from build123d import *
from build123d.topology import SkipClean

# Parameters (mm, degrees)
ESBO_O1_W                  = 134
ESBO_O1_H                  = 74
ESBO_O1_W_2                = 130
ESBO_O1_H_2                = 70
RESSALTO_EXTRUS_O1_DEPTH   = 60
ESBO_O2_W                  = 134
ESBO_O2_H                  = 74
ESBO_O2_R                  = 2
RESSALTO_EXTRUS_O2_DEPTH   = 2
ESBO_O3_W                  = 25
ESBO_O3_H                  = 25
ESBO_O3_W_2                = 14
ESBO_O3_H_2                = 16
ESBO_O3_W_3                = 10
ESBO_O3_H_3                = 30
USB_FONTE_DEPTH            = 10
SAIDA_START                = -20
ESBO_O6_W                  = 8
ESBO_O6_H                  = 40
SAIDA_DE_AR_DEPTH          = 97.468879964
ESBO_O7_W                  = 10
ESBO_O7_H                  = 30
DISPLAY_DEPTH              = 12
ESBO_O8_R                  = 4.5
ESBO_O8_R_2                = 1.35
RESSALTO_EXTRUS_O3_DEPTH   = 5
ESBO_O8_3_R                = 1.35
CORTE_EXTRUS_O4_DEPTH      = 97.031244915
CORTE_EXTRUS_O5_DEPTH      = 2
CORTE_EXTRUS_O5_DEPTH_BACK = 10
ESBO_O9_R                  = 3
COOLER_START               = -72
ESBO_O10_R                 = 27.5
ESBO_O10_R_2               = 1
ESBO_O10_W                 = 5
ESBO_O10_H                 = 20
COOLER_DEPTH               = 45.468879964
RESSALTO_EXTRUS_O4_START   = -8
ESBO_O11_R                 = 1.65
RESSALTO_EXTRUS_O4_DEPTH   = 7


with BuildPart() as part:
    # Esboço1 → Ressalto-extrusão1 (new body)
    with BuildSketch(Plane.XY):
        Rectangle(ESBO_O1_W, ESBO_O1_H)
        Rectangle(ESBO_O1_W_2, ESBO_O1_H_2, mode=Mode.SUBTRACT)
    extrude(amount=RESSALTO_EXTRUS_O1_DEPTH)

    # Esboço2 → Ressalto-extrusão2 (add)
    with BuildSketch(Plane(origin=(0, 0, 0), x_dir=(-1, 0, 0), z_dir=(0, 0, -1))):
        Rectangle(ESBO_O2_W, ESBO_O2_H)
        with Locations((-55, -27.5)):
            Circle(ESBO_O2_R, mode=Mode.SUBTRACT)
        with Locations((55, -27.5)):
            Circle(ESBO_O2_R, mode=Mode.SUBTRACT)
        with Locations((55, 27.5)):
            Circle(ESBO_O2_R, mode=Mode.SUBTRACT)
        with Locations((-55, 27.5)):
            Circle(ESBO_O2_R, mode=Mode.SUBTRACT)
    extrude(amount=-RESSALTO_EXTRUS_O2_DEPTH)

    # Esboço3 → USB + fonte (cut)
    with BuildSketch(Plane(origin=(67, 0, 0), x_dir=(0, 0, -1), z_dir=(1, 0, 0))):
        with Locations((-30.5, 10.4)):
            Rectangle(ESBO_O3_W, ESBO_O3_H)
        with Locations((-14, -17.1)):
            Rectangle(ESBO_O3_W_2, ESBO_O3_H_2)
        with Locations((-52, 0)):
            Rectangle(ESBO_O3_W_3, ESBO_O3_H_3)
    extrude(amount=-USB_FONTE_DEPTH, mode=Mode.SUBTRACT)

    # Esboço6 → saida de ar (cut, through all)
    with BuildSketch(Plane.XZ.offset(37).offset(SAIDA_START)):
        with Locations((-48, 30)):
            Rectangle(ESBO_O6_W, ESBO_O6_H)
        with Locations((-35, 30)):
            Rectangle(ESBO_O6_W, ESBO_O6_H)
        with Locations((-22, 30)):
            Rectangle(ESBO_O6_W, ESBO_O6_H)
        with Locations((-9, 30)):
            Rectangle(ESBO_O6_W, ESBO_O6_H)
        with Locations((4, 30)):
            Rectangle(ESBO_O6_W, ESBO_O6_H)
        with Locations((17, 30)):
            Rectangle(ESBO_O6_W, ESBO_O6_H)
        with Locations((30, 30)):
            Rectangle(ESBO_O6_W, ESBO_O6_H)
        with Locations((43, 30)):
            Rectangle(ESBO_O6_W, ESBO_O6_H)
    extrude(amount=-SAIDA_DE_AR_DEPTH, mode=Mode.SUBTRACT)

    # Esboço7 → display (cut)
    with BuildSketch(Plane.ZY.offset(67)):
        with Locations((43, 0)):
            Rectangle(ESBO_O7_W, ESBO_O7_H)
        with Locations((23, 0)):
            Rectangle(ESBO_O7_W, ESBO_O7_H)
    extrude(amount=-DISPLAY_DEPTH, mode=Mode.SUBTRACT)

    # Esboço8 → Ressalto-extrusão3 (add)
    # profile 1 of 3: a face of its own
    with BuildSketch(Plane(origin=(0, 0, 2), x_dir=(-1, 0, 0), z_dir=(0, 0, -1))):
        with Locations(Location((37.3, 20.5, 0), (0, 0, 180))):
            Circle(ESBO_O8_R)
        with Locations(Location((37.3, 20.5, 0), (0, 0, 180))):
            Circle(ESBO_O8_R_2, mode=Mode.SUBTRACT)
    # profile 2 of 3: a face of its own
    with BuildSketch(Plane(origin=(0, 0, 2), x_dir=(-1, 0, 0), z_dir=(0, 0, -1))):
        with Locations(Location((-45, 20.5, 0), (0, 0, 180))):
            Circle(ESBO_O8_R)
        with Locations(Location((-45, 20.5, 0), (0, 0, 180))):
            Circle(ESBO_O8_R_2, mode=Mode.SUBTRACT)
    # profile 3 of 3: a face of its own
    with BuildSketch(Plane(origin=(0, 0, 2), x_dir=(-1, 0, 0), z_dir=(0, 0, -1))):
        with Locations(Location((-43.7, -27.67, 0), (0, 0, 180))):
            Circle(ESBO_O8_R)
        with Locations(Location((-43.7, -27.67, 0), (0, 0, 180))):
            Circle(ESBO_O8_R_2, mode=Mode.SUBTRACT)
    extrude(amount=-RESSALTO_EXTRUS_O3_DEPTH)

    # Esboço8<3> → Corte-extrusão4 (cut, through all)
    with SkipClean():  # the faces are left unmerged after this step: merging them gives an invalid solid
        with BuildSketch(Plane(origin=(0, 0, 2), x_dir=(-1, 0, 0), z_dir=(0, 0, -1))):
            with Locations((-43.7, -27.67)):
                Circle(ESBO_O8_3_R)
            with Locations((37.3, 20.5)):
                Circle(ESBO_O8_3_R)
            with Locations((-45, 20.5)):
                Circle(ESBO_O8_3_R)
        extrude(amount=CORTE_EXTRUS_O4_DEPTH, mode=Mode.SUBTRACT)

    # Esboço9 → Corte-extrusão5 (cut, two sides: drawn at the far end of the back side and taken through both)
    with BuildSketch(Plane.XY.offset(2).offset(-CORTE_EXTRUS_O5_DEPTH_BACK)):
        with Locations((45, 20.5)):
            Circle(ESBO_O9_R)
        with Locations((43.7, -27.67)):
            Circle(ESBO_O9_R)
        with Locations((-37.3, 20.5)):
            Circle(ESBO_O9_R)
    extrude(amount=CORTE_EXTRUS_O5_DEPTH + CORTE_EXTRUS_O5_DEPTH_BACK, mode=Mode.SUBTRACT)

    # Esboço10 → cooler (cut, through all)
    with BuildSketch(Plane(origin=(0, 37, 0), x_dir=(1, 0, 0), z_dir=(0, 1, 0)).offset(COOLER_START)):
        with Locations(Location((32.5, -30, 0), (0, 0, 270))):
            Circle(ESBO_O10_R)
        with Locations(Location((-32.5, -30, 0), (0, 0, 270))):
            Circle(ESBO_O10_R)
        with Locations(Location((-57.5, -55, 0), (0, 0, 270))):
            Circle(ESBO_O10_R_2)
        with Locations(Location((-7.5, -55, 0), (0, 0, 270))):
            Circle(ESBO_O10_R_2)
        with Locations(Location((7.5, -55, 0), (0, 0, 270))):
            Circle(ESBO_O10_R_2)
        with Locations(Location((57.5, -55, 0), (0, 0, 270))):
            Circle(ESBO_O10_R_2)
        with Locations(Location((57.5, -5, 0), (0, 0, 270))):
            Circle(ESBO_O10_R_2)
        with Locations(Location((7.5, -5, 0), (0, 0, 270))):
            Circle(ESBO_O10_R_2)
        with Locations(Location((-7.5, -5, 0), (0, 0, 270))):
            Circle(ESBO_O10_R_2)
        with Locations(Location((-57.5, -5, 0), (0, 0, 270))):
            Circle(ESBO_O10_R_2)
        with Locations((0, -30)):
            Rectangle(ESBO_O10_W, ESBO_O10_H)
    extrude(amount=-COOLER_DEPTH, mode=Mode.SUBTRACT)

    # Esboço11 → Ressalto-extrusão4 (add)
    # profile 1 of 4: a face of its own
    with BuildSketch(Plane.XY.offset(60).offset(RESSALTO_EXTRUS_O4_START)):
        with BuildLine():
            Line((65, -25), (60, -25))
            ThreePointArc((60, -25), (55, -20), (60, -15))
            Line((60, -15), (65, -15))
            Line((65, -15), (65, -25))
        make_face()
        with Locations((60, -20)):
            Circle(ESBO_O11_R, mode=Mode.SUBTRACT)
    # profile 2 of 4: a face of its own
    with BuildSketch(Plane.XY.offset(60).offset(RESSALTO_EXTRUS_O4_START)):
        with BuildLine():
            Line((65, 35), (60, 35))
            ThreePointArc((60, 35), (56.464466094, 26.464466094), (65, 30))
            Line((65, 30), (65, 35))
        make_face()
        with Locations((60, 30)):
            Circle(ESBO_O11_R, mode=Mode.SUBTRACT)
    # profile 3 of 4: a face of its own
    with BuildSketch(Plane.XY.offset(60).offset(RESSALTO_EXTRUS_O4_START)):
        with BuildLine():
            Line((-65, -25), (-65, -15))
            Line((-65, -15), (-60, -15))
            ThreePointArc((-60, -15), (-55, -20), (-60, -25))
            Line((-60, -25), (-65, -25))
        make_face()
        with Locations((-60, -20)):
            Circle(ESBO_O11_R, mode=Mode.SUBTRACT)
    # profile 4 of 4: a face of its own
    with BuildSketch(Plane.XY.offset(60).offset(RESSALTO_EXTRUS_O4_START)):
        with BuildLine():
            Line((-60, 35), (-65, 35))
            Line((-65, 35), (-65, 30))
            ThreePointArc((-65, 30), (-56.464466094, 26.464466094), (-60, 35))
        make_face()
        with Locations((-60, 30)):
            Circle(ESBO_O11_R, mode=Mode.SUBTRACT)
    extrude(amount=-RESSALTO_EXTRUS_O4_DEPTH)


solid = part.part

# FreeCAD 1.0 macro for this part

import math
import FreeCAD as App
import Part
import Sketcher
from FreeCAD import Vector
Q = App.Units.Quantity

doc = App.newDocument("Part")
body = doc.addObject("PartDesign::Body", "Body")

# Sketch on XY plane
sketch1 = body.newObject("Sketcher::SketchObject", "Sketch")
sketch1.AttachmentSupport = (doc.getObject("XY_Plane"), [""])
sketch1.MapMode = "FlatFace"
sketch1.addGeometry(Part.LineSegment(Vector(-67, 37, 0), Vector(-67, -37, 0)), False)
sketch1.addGeometry(Part.LineSegment(Vector(-67, -37, 0), Vector(67, -37, 0)), False)
sketch1.addGeometry(Part.LineSegment(Vector(67, -37, 0), Vector(67, 37, 0)), False)
sketch1.addGeometry(Part.LineSegment(Vector(67, 37, 0), Vector(-67, 37, 0)), False)
sketch1.addGeometry(Part.LineSegment(Vector(65, -35, 0), Vector(-65, -35, 0)), False)
sketch1.addGeometry(Part.LineSegment(Vector(-65, -35, 0), Vector(-65, 35, 0)), False)
sketch1.addGeometry(Part.LineSegment(Vector(-65, 35, 0), Vector(65, 35, 0)), False)
sketch1.addGeometry(Part.LineSegment(Vector(65, 35, 0), Vector(65, -35, 0)), False)
sketch1.addConstraint(Sketcher.Constraint("Coincident", 0, 2, 1, 1))
sketch1.addConstraint(Sketcher.Constraint("Coincident", 1, 2, 2, 1))
sketch1.addConstraint(Sketcher.Constraint("Coincident", 2, 2, 3, 1))
sketch1.addConstraint(Sketcher.Constraint("Coincident", 3, 2, 0, 1))
sketch1.addConstraint(Sketcher.Constraint("Coincident", 4, 2, 5, 1))
sketch1.addConstraint(Sketcher.Constraint("Coincident", 5, 2, 6, 1))
sketch1.addConstraint(Sketcher.Constraint("Coincident", 6, 2, 7, 1))
sketch1.addConstraint(Sketcher.Constraint("Coincident", 7, 2, 4, 1))
sketch1.addConstraint(Sketcher.Constraint("Vertical", 0))
sketch1.addConstraint(Sketcher.Constraint("Horizontal", 1))
sketch1.addConstraint(Sketcher.Constraint("Vertical", 2))
sketch1.addConstraint(Sketcher.Constraint("Horizontal", 3))
sketch1.addConstraint(Sketcher.Constraint("Horizontal", 4))
sketch1.addConstraint(Sketcher.Constraint("Vertical", 5))
sketch1.addConstraint(Sketcher.Constraint("Horizontal", 6))
sketch1.addConstraint(Sketcher.Constraint("Vertical", 7))
sketch1.addConstraint(Sketcher.Constraint("Symmetric", 0, 2, 2, 2, -1, 1))
sketch1.addConstraint(Sketcher.Constraint("Symmetric", 4, 2, 6, 2, -1, 1))
sketch1.addConstraint(Sketcher.Constraint("DistanceX", 1, 1, 1, 2, Q("134 mm")))
sketch1.addConstraint(Sketcher.Constraint("DistanceX", 4, 2, 4, 1, Q("130 mm")))
sketch1.addConstraint(Sketcher.Constraint("DistanceY", 0, 2, 0, 1, Q("74 mm")))
sketch1.addConstraint(Sketcher.Constraint("DistanceY", 5, 1, 5, 2, Q("70 mm")))
pad1 = body.newObject("PartDesign::Pad", "Pad")
pad1.Profile = sketch1
pad1.Length = 60

# Sketch on XY plane
sketch2 = body.newObject("Sketcher::SketchObject", "Sketch001")
sketch2.AttachmentSupport = (doc.getObject("XY_Plane"), [""])
sketch2.MapMode = "FlatFace"
sketch2.addGeometry(Part.LineSegment(Vector(67, 37, 0), Vector(67, -37, 0)), False)
sketch2.addGeometry(Part.LineSegment(Vector(67, -37, 0), Vector(-67, -37, 0)), False)
sketch2.addGeometry(Part.LineSegment(Vector(-67, -37, 0), Vector(-67, 37, 0)), False)
sketch2.addGeometry(Part.LineSegment(Vector(-67, 37, 0), Vector(67, 37, 0)), False)
sketch2.addGeometry(Part.Circle(Vector(55, -27.5, 0), Vector(0, 0, 1), 2), False)
sketch2.addGeometry(Part.Circle(Vector(-55, -27.5, 0), Vector(0, 0, 1), 2), False)
sketch2.addGeometry(Part.Circle(Vector(55, 27.5, 0), Vector(0, 0, 1), 2), False)
sketch2.addGeometry(Part.Circle(Vector(-55, 27.5, 0), Vector(0, 0, 1), 2), False)
sketch2.addConstraint(Sketcher.Constraint("Coincident", 0, 2, 1, 1))
sketch2.addConstraint(Sketcher.Constraint("Coincident", 1, 2, 2, 1))
sketch2.addConstraint(Sketcher.Constraint("Coincident", 2, 2, 3, 1))
sketch2.addConstraint(Sketcher.Constraint("Coincident", 3, 2, 0, 1))
sketch2.addConstraint(Sketcher.Constraint("Vertical", 0))
sketch2.addConstraint(Sketcher.Constraint("Horizontal", 1))
sketch2.addConstraint(Sketcher.Constraint("Vertical", 2))
sketch2.addConstraint(Sketcher.Constraint("Horizontal", 3))
sketch2.addConstraint(Sketcher.Constraint("Equal", 4, 5))
sketch2.addConstraint(Sketcher.Constraint("Equal", 5, 6))
sketch2.addConstraint(Sketcher.Constraint("Equal", 6, 7))
sketch2.addConstraint(Sketcher.Constraint("Symmetric", 5, 3, 6, 3, -1, 1))
sketch2.addConstraint(Sketcher.Constraint("Symmetric", 4, 3, 7, 3, -1, 1))
sketch2.addConstraint(Sketcher.Constraint("Symmetric", 0, 2, 2, 2, -1, 1))
sketch2.addConstraint(Sketcher.Constraint("Symmetric", 4, 3, 5, 3, -2))
sketch2.addConstraint(Sketcher.Constraint("Diameter", 4, Q("4 mm")))
sketch2.addConstraint(Sketcher.Constraint("DistanceX", 1, 2, 1, 1, Q("134 mm")))
sketch2.addConstraint(Sketcher.Constraint("DistanceY", 0, 2, 0, 1, Q("74 mm")))
sketch2.addConstraint(Sketcher.Constraint("DistanceX", -1, 1, 4, 3, Q("55 mm")))
sketch2.addConstraint(Sketcher.Constraint("DistanceY", 4, 3, 6, 3, Q("55 mm")))
pad2 = body.newObject("PartDesign::Pad", "Pad001")
pad2.Profile = sketch2
pad2.Length = 2

# Sketch on YZ plane
sketch3 = body.newObject("Sketcher::SketchObject", "Sketch002")
sketch3.AttachmentSupport = (doc.getObject("YZ_Plane"), [""])
sketch3.MapMode = "FlatFace"
sketch3.AttachmentOffset = App.Placement(Vector(0, 0, 67), App.Rotation())
sketch3.addGeometry(Part.LineSegment(Vector(23, 43, 0), Vector(-2, 43, 0)), False)
sketch3.addGeometry(Part.LineSegment(Vector(-2, 43, 0), Vector(-2, 18, 0)), False)
sketch3.addGeometry(Part.LineSegment(Vector(-2, 18, 0), Vector(23, 18, 0)), False)
sketch3.addGeometry(Part.LineSegment(Vector(23, 18, 0), Vector(23, 43, 0)), False)
sketch3.addGeometry(Part.LineSegment(Vector(-9, 21, 0), Vector(-25, 21, 0)), False)
sketch3.addGeometry(Part.LineSegment(Vector(-25, 21, 0), Vector(-25, 7, 0)), False)
sketch3.addGeometry(Part.LineSegment(Vector(-25, 7, 0), Vector(-9, 7, 0)), False)
sketch3.addGeometry(Part.LineSegment(Vector(-9, 7, 0), Vector(-9, 21, 0)), False)
sketch3.addGeometry(Part.LineSegment(Vector(15, 57, 0), Vector(-15, 57, 0)), False)
sketch3.addGeometry(Part.LineSegment(Vector(-15, 57, 0), Vector(-15, 47, 0)), False)
sketch3.addGeometry(Part.LineSegment(Vector(-15, 47, 0), Vector(15, 47, 0)), False)
sketch3.addGeometry(Part.LineSegment(Vector(15, 47, 0), Vector(15, 57, 0)), False)
sketch3.addConstraint(Sketcher.Constraint("Coincident", 0, 2, 1, 1))
sketch3.addConstraint(Sketcher.Constraint("Coincident", 1, 2, 2, 1))
sketch3.addConstraint(Sketcher.Constraint("Coincident", 2, 2, 3, 1))
sketch3.addConstraint(Sketcher.Constraint("Coincident", 3, 2, 0, 1))
sketch3.addConstraint(Sketcher.Constraint("Coincident", 4, 2, 5, 1))
sketch3.addConstraint(Sketcher.Constraint("Coincident", 5, 2, 6, 1))
sketch3.addConstraint(Sketcher.Constraint("Coincident", 6, 2, 7, 1))
sketch3.addConstraint(Sketcher.Constraint("Coincident", 7, 2, 4, 1))
sketch3.addConstraint(Sketcher.Constraint("Coincident", 8, 2, 9, 1))
sketch3.addConstraint(Sketcher.Constraint("Coincident", 9, 2, 10, 1))
sketch3.addConstraint(Sketcher.Constraint("Coincident", 10, 2, 11, 1))
sketch3.addConstraint(Sketcher.Constraint("Coincident", 11, 2, 8, 1))
sketch3.addConstraint(Sketcher.Constraint("Horizontal", 0))
sketch3.addConstraint(Sketcher.Constraint("Vertical", 1))
sketch3.addConstraint(Sketcher.Constraint("Horizontal", 2))
sketch3.addConstraint(Sketcher.Constraint("Vertical", 3))
sketch3.addConstraint(Sketcher.Constraint("Horizontal", 4))
sketch3.addConstraint(Sketcher.Constraint("Vertical", 5))
sketch3.addConstraint(Sketcher.Constraint("Horizontal", 6))
sketch3.addConstraint(Sketcher.Constraint("Vertical", 7))
sketch3.addConstraint(Sketcher.Constraint("Horizontal", 8))
sketch3.addConstraint(Sketcher.Constraint("Vertical", 9))
sketch3.addConstraint(Sketcher.Constraint("Horizontal", 10))
sketch3.addConstraint(Sketcher.Constraint("Vertical", 11))
sketch3.addConstraint(Sketcher.Constraint("Equal", 2, 1))
sketch3.addConstraint(Sketcher.Constraint("DistanceX", 0, 2, 0, 1, Q("25 mm")))
sketch3.addConstraint(Sketcher.Constraint("DistanceX", 4, 2, 4, 1, Q("16 mm")))
sketch3.addConstraint(Sketcher.Constraint("DistanceX", 8, 2, 8, 1, Q("30 mm")))
sketch3.addConstraint(Sketcher.Constraint("DistanceY", 5, 2, 5, 1, Q("14 mm")))
sketch3.addConstraint(Sketcher.Constraint("DistanceY", 9, 2, 9, 1, Q("10 mm")))
sketch3.addConstraint(Sketcher.Constraint("DistanceY", -1, 1, 0, 2, Q("43 mm")))
sketch3.addConstraint(Sketcher.Constraint("DistanceY", -1, 1, 4, 2, Q("21 mm")))
sketch3.addConstraint(Sketcher.Constraint("DistanceX", 8, 2, -1, 1, Q("15 mm")))
sketch3.addConstraint(Sketcher.Constraint("DistanceY", -1, 1, 8, 2, Q("57 mm")))
sketch3.addConstraint(Sketcher.Constraint("DistanceX", 4, 2, 1, 2, Q("23 mm")))
sketch3.addConstraint(Sketcher.Constraint("DistanceX", 0, 2, -1, 1, Q("2.1 mm")))
pocket1 = body.newObject("PartDesign::Pocket", "Pocket")
pocket1.Profile = sketch3
pocket1.Length = 10

# Sketch on XZ plane
sketch4 = body.newObject("Sketcher::SketchObject", "Sketch003")
sketch4.AttachmentSupport = (doc.getObject("XZ_Plane"), [""])
sketch4.MapMode = "FlatFace"
sketch4.AttachmentOffset = App.Placement(Vector(0, 0, 17), App.Rotation())
sketch4.addGeometry(Part.LineSegment(Vector(-52, 50, 0), Vector(-52, 10, 0)), False)
sketch4.addGeometry(Part.LineSegment(Vector(-52, 10, 0), Vector(-44, 10, 0)), False)
sketch4.addGeometry(Part.LineSegment(Vector(-44, 10, 0), Vector(-44, 50, 0)), False)
sketch4.addGeometry(Part.LineSegment(Vector(-44, 50, 0), Vector(-52, 50, 0)), False)
sketch4.addGeometry(Part.LineSegment(Vector(-39, 50, 0), Vector(-39, 10, 0)), False)
sketch4.addGeometry(Part.LineSegment(Vector(-39, 10, 0), Vector(-31, 10, 0)), False)
sketch4.addGeometry(Part.LineSegment(Vector(-31, 10, 0), Vector(-31, 50, 0)), False)
sketch4.addGeometry(Part.LineSegment(Vector(-31, 50, 0), Vector(-39, 50, 0)), False)
sketch4.addGeometry(Part.LineSegment(Vector(-26, 50, 0), Vector(-26, 10, 0)), False)
sketch4.addGeometry(Part.LineSegment(Vector(-26, 10, 0), Vector(-18, 10, 0)), False)
sketch4.addGeometry(Part.LineSegment(Vector(-18, 10, 0), Vector(-18, 50, 0)), False)
sketch4.addGeometry(Part.LineSegment(Vector(-18, 50, 0), Vector(-26, 50, 0)), False)
sketch4.addGeometry(Part.LineSegment(Vector(-13, 50, 0), Vector(-13, 10, 0)), False)
sketch4.addGeometry(Part.LineSegment(Vector(-13, 10, 0), Vector(-5, 10, 0)), False)
sketch4.addGeometry(Part.LineSegment(Vector(-5, 10, 0), Vector(-5, 50, 0)), False)
sketch4.addGeometry(Part.LineSegment(Vector(-5, 50, 0), Vector(-13, 50, 0)), False)
sketch4.addGeometry(Part.LineSegment(Vector(0, 50, 0), Vector(0, 10, 0)), False)
sketch4.addGeometry(Part.LineSegment(Vector(0, 10, 0), Vector(8, 10, 0)), False)
sketch4.addGeometry(Part.LineSegment(Vector(8, 10, 0), Vector(8, 50, 0)), False)
sketch4.addGeometry(Part.LineSegment(Vector(8, 50, 0), Vector(0, 50, 0)), False)
sketch4.addGeometry(Part.LineSegment(Vector(13, 50, 0), Vector(13, 10, 0)), False)
sketch4.addGeometry(Part.LineSegment(Vector(13, 10, 0), Vector(21, 10, 0)), False)
sketch4.addGeometry(Part.LineSegment(Vector(21, 10, 0), Vector(21, 50, 0)), False)
sketch4.addGeometry(Part.LineSegment(Vector(21, 50, 0), Vector(13, 50, 0)), False)
sketch4.addGeometry(Part.LineSegment(Vector(26, 50, 0), Vector(26, 10, 0)), False)
sketch4.addGeometry(Part.LineSegment(Vector(26, 10, 0), Vector(34, 10, 0)), False)
sketch4.addGeometry(Part.LineSegment(Vector(34, 10, 0), Vector(34, 50, 0)), False)
sketch4.addGeometry(Part.LineSegment(Vector(34, 50, 0), Vector(26, 50, 0)), False)
sketch4.addGeometry(Part.LineSegment(Vector(39, 50, 0), Vector(39, 10, 0)), False)
sketch4.addGeometry(Part.LineSegment(Vector(39, 10, 0), Vector(47, 10, 0)), False)
sketch4.addGeometry(Part.LineSegment(Vector(47, 10, 0), Vector(47, 50, 0)), False)
sketch4.addGeometry(Part.LineSegment(Vector(47, 50, 0), Vector(39, 50, 0)), False)
sketch4.addConstraint(Sketcher.Constraint("Coincident", 0, 2, 1, 1))
sketch4.addConstraint(Sketcher.Constraint("Coincident", 1, 2, 2, 1))
sketch4.addConstraint(Sketcher.Constraint("Coincident", 2, 2, 3, 1))
sketch4.addConstraint(Sketcher.Constraint("Coincident", 3, 2, 0, 1))
sketch4.addConstraint(Sketcher.Constraint("Coincident", 4, 2, 5, 1))
sketch4.addConstraint(Sketcher.Constraint("Coincident", 5, 2, 6, 1))
sketch4.addConstraint(Sketcher.Constraint("Coincident", 6, 2, 7, 1))
sketch4.addConstraint(Sketcher.Constraint("Coincident", 7, 2, 4, 1))
sketch4.addConstraint(Sketcher.Constraint("Coincident", 8, 2, 9, 1))
sketch4.addConstraint(Sketcher.Constraint("Coincident", 9, 2, 10, 1))
sketch4.addConstraint(Sketcher.Constraint("Coincident", 10, 2, 11, 1))
sketch4.addConstraint(Sketcher.Constraint("Coincident", 11, 2, 8, 1))
sketch4.addConstraint(Sketcher.Constraint("Coincident", 12, 2, 13, 1))
sketch4.addConstraint(Sketcher.Constraint("Coincident", 13, 2, 14, 1))
sketch4.addConstraint(Sketcher.Constraint("Coincident", 14, 2, 15, 1))
sketch4.addConstraint(Sketcher.Constraint("Coincident", 15, 2, 12, 1))
sketch4.addConstraint(Sketcher.Constraint("Coincident", 16, 2, 17, 1))
sketch4.addConstraint(Sketcher.Constraint("Coincident", 17, 2, 18, 1))
sketch4.addConstraint(Sketcher.Constraint("Coincident", 18, 2, 19, 1))
sketch4.addConstraint(Sketcher.Constraint("Coincident", 19, 2, 16, 1))
sketch4.addConstraint(Sketcher.Constraint("Coincident", 20, 2, 21, 1))
sketch4.addConstraint(Sketcher.Constraint("Coincident", 21, 2, 22, 1))
sketch4.addConstraint(Sketcher.Constraint("Coincident", 22, 2, 23, 1))
sketch4.addConstraint(Sketcher.Constraint("Coincident", 23, 2, 20, 1))
sketch4.addConstraint(Sketcher.Constraint("Coincident", 24, 2, 25, 1))
sketch4.addConstraint(Sketcher.Constraint("Coincident", 25, 2, 26, 1))
sketch4.addConstraint(Sketcher.Constraint("Coincident", 26, 2, 27, 1))
sketch4.addConstraint(Sketcher.Constraint("Coincident", 27, 2, 24, 1))
sketch4.addConstraint(Sketcher.Constraint("Coincident", 28, 2, 29, 1))
sketch4.addConstraint(Sketcher.Constraint("Coincident", 29, 2, 30, 1))
sketch4.addConstraint(Sketcher.Constraint("Coincident", 30, 2, 31, 1))
sketch4.addConstraint(Sketcher.Constraint("Coincident", 31, 2, 28, 1))
sketch4.addConstraint(Sketcher.Constraint("Vertical", 0))
sketch4.addConstraint(Sketcher.Constraint("Horizontal", 1))
sketch4.addConstraint(Sketcher.Constraint("Vertical", 2))
sketch4.addConstraint(Sketcher.Constraint("Horizontal", 3))
sketch4.addConstraint(Sketcher.Constraint("Vertical", 4))
sketch4.addConstraint(Sketcher.Constraint("Horizontal", 5))
sketch4.addConstraint(Sketcher.Constraint("Vertical", 6))
sketch4.addConstraint(Sketcher.Constraint("Horizontal", 7))
sketch4.addConstraint(Sketcher.Constraint("Vertical", 8))
sketch4.addConstraint(Sketcher.Constraint("Horizontal", 9))
sketch4.addConstraint(Sketcher.Constraint("Vertical", 10))
sketch4.addConstraint(Sketcher.Constraint("Horizontal", 11))
sketch4.addConstraint(Sketcher.Constraint("Vertical", 12))
sketch4.addConstraint(Sketcher.Constraint("Horizontal", 13))
sketch4.addConstraint(Sketcher.Constraint("Vertical", 14))
sketch4.addConstraint(Sketcher.Constraint("Horizontal", 15))
sketch4.addConstraint(Sketcher.Constraint("Vertical", 16))
sketch4.addConstraint(Sketcher.Constraint("Horizontal", 17))
sketch4.addConstraint(Sketcher.Constraint("Vertical", 18))
sketch4.addConstraint(Sketcher.Constraint("Horizontal", 19))
sketch4.addConstraint(Sketcher.Constraint("Vertical", 20))
sketch4.addConstraint(Sketcher.Constraint("Horizontal", 21))
sketch4.addConstraint(Sketcher.Constraint("Vertical", 22))
sketch4.addConstraint(Sketcher.Constraint("Horizontal", 23))
sketch4.addConstraint(Sketcher.Constraint("Vertical", 24))
sketch4.addConstraint(Sketcher.Constraint("Horizontal", 25))
sketch4.addConstraint(Sketcher.Constraint("Vertical", 26))
sketch4.addConstraint(Sketcher.Constraint("Horizontal", 27))
sketch4.addConstraint(Sketcher.Constraint("Vertical", 28))
sketch4.addConstraint(Sketcher.Constraint("Horizontal", 29))
sketch4.addConstraint(Sketcher.Constraint("Vertical", 30))
sketch4.addConstraint(Sketcher.Constraint("Horizontal", 31))
sketch4.addConstraint(Sketcher.Constraint("Symmetric", 12, 2, 20, 2, -2))
sketch4.addConstraint(Sketcher.Constraint("Symmetric", 8, 2, 24, 2, -2))
sketch4.addConstraint(Sketcher.Constraint("Symmetric", 4, 2, 28, 2, -2))
sketch4.addConstraint(Sketcher.Constraint("PointOnObject", 16, 2, -2))
sketch4.addConstraint(Sketcher.Constraint("Horizontal", 1, 2, 4, 2))
sketch4.addConstraint(Sketcher.Constraint("Horizontal", 3, 2, 6, 2))
sketch4.addConstraint(Sketcher.Constraint("Horizontal", 5, 2, 8, 2))
sketch4.addConstraint(Sketcher.Constraint("Horizontal", 7, 2, 10, 2))
sketch4.addConstraint(Sketcher.Constraint("Horizontal", 9, 2, 12, 2))
sketch4.addConstraint(Sketcher.Constraint("Horizontal", 11, 2, 14, 2))
sketch4.addConstraint(Sketcher.Constraint("Horizontal", 13, 2, 16, 2))
sketch4.addConstraint(Sketcher.Constraint("Horizontal", 15, 2, 18, 2))
sketch4.addConstraint(Sketcher.Constraint("Horizontal", 19, 2, 22, 2))
sketch4.addConstraint(Sketcher.Constraint("Horizontal", 23, 2, 26, 2))
sketch4.addConstraint(Sketcher.Constraint("Horizontal", 27, 2, 30, 2))
sketch4.addConstraint(Sketcher.Constraint("Equal", 3, 5))
sketch4.addConstraint(Sketcher.Constraint("Equal", 7, 9))
sketch4.addConstraint(Sketcher.Constraint("Equal", 11, 13))
sketch4.addConstraint(Sketcher.Constraint("Equal", 15, 17))
sketch4.addConstraint(Sketcher.Constraint("Equal", 19, 21))
sketch4.addConstraint(Sketcher.Constraint("Equal", 23, 25))
sketch4.addConstraint(Sketcher.Constraint("Equal", 27, 29))
sketch4.addConstraint(Sketcher.Constraint("DistanceX", 1, 1, 1, 2, Q("8 mm")))
sketch4.addConstraint(Sketcher.Constraint("DistanceY", 0, 2, 0, 1, Q("40 mm")))
sketch4.addConstraint(Sketcher.Constraint("DistanceX", 0, 2, -1, 1, Q("52 mm")))
sketch4.addConstraint(Sketcher.Constraint("DistanceY", -1, 1, 0, 2, Q("10 mm")))
sketch4.addConstraint(Sketcher.Constraint("DistanceX", 4, 2, -1, 1, Q("39 mm")))
sketch4.addConstraint(Sketcher.Constraint("DistanceX", 8, 2, -1, 1, Q("26 mm")))
sketch4.addConstraint(Sketcher.Constraint("DistanceX", 12, 2, -1, 1, Q("13 mm")))
pocket2 = body.newObject("PartDesign::Pocket", "Pocket001")
pocket2.Profile = sketch4
pocket2.Type = "ThroughAll"

# Sketch on YZ plane
sketch5 = body.newObject("Sketcher::SketchObject", "Sketch004")
sketch5.AttachmentSupport = (doc.getObject("YZ_Plane"), [""])
sketch5.MapMode = "FlatFace"
sketch5.AttachmentOffset = App.Placement(Vector(0, 0, -67), App.Rotation())
sketch5.addGeometry(Part.LineSegment(Vector(15, 38, 0), Vector(-15, 38, 0)), False)
sketch5.addGeometry(Part.LineSegment(Vector(-15, 38, 0), Vector(-15, 48, 0)), False)
sketch5.addGeometry(Part.LineSegment(Vector(-15, 48, 0), Vector(15, 48, 0)), False)
sketch5.addGeometry(Part.LineSegment(Vector(15, 48, 0), Vector(15, 38, 0)), False)
sketch5.addGeometry(Part.LineSegment(Vector(15, 18, 0), Vector(-15, 18, 0)), False)
sketch5.addGeometry(Part.LineSegment(Vector(-15, 18, 0), Vector(-15, 28, 0)), False)
sketch5.addGeometry(Part.LineSegment(Vector(-15, 28, 0), Vector(15, 28, 0)), False)
sketch5.addGeometry(Part.LineSegment(Vector(15, 28, 0), Vector(15, 18, 0)), False)
sketch5.addConstraint(Sketcher.Constraint("Coincident", 0, 2, 1, 1))
sketch5.addConstraint(Sketcher.Constraint("Coincident", 1, 2, 2, 1))
sketch5.addConstraint(Sketcher.Constraint("Coincident", 2, 2, 3, 1))
sketch5.addConstraint(Sketcher.Constraint("Coincident", 3, 2, 0, 1))
sketch5.addConstraint(Sketcher.Constraint("Coincident", 4, 2, 5, 1))
sketch5.addConstraint(Sketcher.Constraint("Coincident", 5, 2, 6, 1))
sketch5.addConstraint(Sketcher.Constraint("Coincident", 6, 2, 7, 1))
sketch5.addConstraint(Sketcher.Constraint("Coincident", 7, 2, 4, 1))
sketch5.addConstraint(Sketcher.Constraint("Horizontal", 0))
sketch5.addConstraint(Sketcher.Constraint("Vertical", 1))
sketch5.addConstraint(Sketcher.Constraint("Horizontal", 2))
sketch5.addConstraint(Sketcher.Constraint("Vertical", 3))
sketch5.addConstraint(Sketcher.Constraint("Horizontal", 4))
sketch5.addConstraint(Sketcher.Constraint("Vertical", 5))
sketch5.addConstraint(Sketcher.Constraint("Horizontal", 6))
sketch5.addConstraint(Sketcher.Constraint("Vertical", 7))
sketch5.addConstraint(Sketcher.Constraint("Vertical", 1, 2, 4, 2))
sketch5.addConstraint(Sketcher.Constraint("Vertical", 3, 2, 6, 2))
sketch5.addConstraint(Sketcher.Constraint("Equal", 3, 5))
sketch5.addConstraint(Sketcher.Constraint("DistanceX", 0, 2, 0, 1, Q("30 mm")))
sketch5.addConstraint(Sketcher.Constraint("DistanceY", 1, 1, 1, 2, Q("10 mm")))
sketch5.addConstraint(Sketcher.Constraint("DistanceX", 0, 2, -1, 1, Q("15 mm")))
sketch5.addConstraint(Sketcher.Constraint("DistanceY", -1, 1, 0, 2, Q("38 mm")))
sketch5.addConstraint(Sketcher.Constraint("DistanceY", -1, 1, 4, 2, Q("18 mm")))
pocket3 = body.newObject("PartDesign::Pocket", "Pocket002")
pocket3.Profile = sketch5
pocket3.Length = 12
pocket3.Reversed = True

# Sketch on XY plane
sketch6 = body.newObject("Sketcher::SketchObject", "Sketch005")
sketch6.AttachmentSupport = (doc.getObject("XY_Plane"), [""])
sketch6.MapMode = "FlatFace"
sketch6.AttachmentOffset = App.Placement(Vector(0, 0, 2), App.Rotation())
sketch6.addGeometry(Part.Circle(Vector(-37.3, 20.5, 0), Vector(0, 0, 1), 4.5), False)
sketch6.addGeometry(Part.Circle(Vector(-37.3, 20.5, 0), Vector(0, 0, 1), 1.4), False)
sketch6.addGeometry(Part.Circle(Vector(45, 20.5, 0), Vector(0, 0, 1), 4.5), False)
sketch6.addGeometry(Part.Circle(Vector(45, 20.5, 0), Vector(0, 0, 1), 1.4), False)
sketch6.addGeometry(Part.Circle(Vector(43.7, -27.7, 0), Vector(0, 0, 1), 4.5), False)
sketch6.addGeometry(Part.Circle(Vector(43.7, -27.7, 0), Vector(0, 0, 1), 1.4), False)
sketch6.addConstraint(Sketcher.Constraint("Coincident", 1, 3, 0, 3))
sketch6.addConstraint(Sketcher.Constraint("Coincident", 3, 3, 2, 3))
sketch6.addConstraint(Sketcher.Constraint("Coincident", 5, 3, 4, 3))
sketch6.addConstraint(Sketcher.Constraint("Equal", 0, 2))
sketch6.addConstraint(Sketcher.Constraint("Equal", 1, 3))
sketch6.addConstraint(Sketcher.Constraint("Equal", 2, 4))
sketch6.addConstraint(Sketcher.Constraint("Equal", 3, 5))
sketch6.addConstraint(Sketcher.Constraint("Horizontal", 1, 3, 2, 3))
sketch6.addConstraint(Sketcher.Constraint("Diameter", 0, Q("9 mm")))
sketch6.addConstraint(Sketcher.Constraint("Diameter", 1, Q("2.7 mm")))
sketch6.addConstraint(Sketcher.Constraint("DistanceX", -1, 1, 2, 3, Q("45 mm")))
sketch6.addConstraint(Sketcher.Constraint("DistanceX", 0, 3, 4, 3, Q("81 mm")))
sketch6.addConstraint(Sketcher.Constraint("DistanceX", 0, 3, -1, 1, Q("37.3 mm")))
sketch6.addConstraint(Sketcher.Constraint("DistanceY", -1, 1, 0, 3, Q("20.5 mm")))
sketch6.addConstraint(Sketcher.Constraint("DistanceY", 4, 3, -1, 1, Q("27.67 mm")))
pad3 = body.newObject("PartDesign::Pad", "Pad002")
pad3.Profile = sketch6
pad3.Length = 5

# Sketch on XY plane
sketch7 = body.newObject("Sketcher::SketchObject", "Sketch006")
sketch7.AttachmentSupport = (doc.getObject("XY_Plane"), [""])
sketch7.MapMode = "FlatFace"
sketch7.AttachmentOffset = App.Placement(Vector(0, 0, 2), App.Rotation())
sketch7.addGeometry(Part.Circle(Vector(43.7, -27.7, 0), Vector(0, 0, 1), 1.4), False)
sketch7.addGeometry(Part.Circle(Vector(-37.3, 20.5, 0), Vector(0, 0, 1), 1.4), False)
sketch7.addGeometry(Part.Circle(Vector(45, 20.5, 0), Vector(0, 0, 1), 1.4), False)
sketch7.addConstraint(Sketcher.Constraint("Equal", 0, 1))
sketch7.addConstraint(Sketcher.Constraint("Equal", 1, 2))
sketch7.addConstraint(Sketcher.Constraint("Horizontal", 1, 3, 2, 3))
sketch7.addConstraint(Sketcher.Constraint("Diameter", 0, Q("2.7 mm")))
sketch7.addConstraint(Sketcher.Constraint("DistanceX", -1, 1, 2, 3, Q("45 mm")))
sketch7.addConstraint(Sketcher.Constraint("DistanceX", 1, 3, 0, 3, Q("81 mm")))
sketch7.addConstraint(Sketcher.Constraint("DistanceX", -1, 1, 0, 3, Q("43.7 mm")))
sketch7.addConstraint(Sketcher.Constraint("DistanceY", -1, 1, 1, 3, Q("20.5 mm")))
sketch7.addConstraint(Sketcher.Constraint("DistanceY", 0, 3, -1, 1, Q("27.67 mm")))
pocket4 = body.newObject("PartDesign::Pocket", "Pocket003")
pocket4.Profile = sketch7
pocket4.Type = "ThroughAll"

# Sketch on XY plane
sketch8 = body.newObject("Sketcher::SketchObject", "Sketch007")
sketch8.AttachmentSupport = (doc.getObject("XY_Plane"), [""])
sketch8.MapMode = "FlatFace"
sketch8.AttachmentOffset = App.Placement(Vector(0, 0, 2), App.Rotation())
sketch8.addGeometry(Part.Circle(Vector(45, 20.5, 0), Vector(0, 0, 1), 3), False)
sketch8.addGeometry(Part.Circle(Vector(43.7, -27.7, 0), Vector(0, 0, 1), 3), False)
sketch8.addGeometry(Part.Circle(Vector(-37.3, 20.5, 0), Vector(0, 0, 1), 3), False)
sketch8.addConstraint(Sketcher.Constraint("Equal", 0, 1))
sketch8.addConstraint(Sketcher.Constraint("Equal", 1, 2))
sketch8.addConstraint(Sketcher.Constraint("Horizontal", 0, 3, 2, 3))
sketch8.addConstraint(Sketcher.Constraint("Diameter", 0, Q("6 mm")))
sketch8.addConstraint(Sketcher.Constraint("DistanceX", -1, 1, 0, 3, Q("45 mm")))
sketch8.addConstraint(Sketcher.Constraint("DistanceX", 2, 3, 1, 3, Q("81 mm")))
sketch8.addConstraint(Sketcher.Constraint("DistanceY", -1, 1, 0, 3, Q("20.5 mm")))
sketch8.addConstraint(Sketcher.Constraint("DistanceX", -1, 1, 1, 3, Q("43.7 mm")))
sketch8.addConstraint(Sketcher.Constraint("DistanceY", 1, 3, -1, 1, Q("27.67 mm")))
pocket5 = body.newObject("PartDesign::Pocket", "Pocket004")
pocket5.Profile = sketch8
pocket5.Type = "TwoLengths"
pocket5.Length = 2
pocket5.Length2 = 10
pocket5.Reversed = True

# Sketch on XZ plane
sketch9 = body.newObject("Sketcher::SketchObject", "Sketch008")
sketch9.AttachmentSupport = (doc.getObject("XZ_Plane"), [""])
sketch9.MapMode = "FlatFace"
sketch9.AttachmentOffset = App.Placement(Vector(0, 0, 35), App.Rotation())
sketch9.addGeometry(Part.Circle(Vector(32.5, 30, 0), Vector(0, 0, 1), 27.5), False)
sketch9.addGeometry(Part.Circle(Vector(-32.5, 30, 0), Vector(0, 0, 1), 27.5), False)
sketch9.addGeometry(Part.Circle(Vector(-57.5, 55, 0), Vector(0, 0, 1), 1), False)
sketch9.addGeometry(Part.Circle(Vector(-7.5, 55, 0), Vector(0, 0, 1), 1), False)
sketch9.addGeometry(Part.Circle(Vector(7.5, 55, 0), Vector(0, 0, 1), 1), False)
sketch9.addGeometry(Part.Circle(Vector(57.5, 55, 0), Vector(0, 0, 1), 1), False)
sketch9.addGeometry(Part.Circle(Vector(57.5, 5, 0), Vector(0, 0, 1), 1), False)
sketch9.addGeometry(Part.Circle(Vector(7.5, 5, 0), Vector(0, 0, 1), 1), False)
sketch9.addGeometry(Part.Circle(Vector(-7.5, 5, 0), Vector(0, 0, 1), 1), False)
sketch9.addGeometry(Part.Circle(Vector(-57.5, 5, 0), Vector(0, 0, 1), 1), False)
sketch9.addGeometry(Part.LineSegment(Vector(-2.5, 20, 0), Vector(-2.5, 40, 0)), False)
sketch9.addGeometry(Part.LineSegment(Vector(-2.5, 40, 0), Vector(2.5, 40, 0)), False)
sketch9.addGeometry(Part.LineSegment(Vector(2.5, 40, 0), Vector(2.5, 20, 0)), False)
sketch9.addGeometry(Part.LineSegment(Vector(2.5, 20, 0), Vector(-2.5, 20, 0)), False)
sketch9.addConstraint(Sketcher.Constraint("Coincident", 10, 2, 11, 1))
sketch9.addConstraint(Sketcher.Constraint("Coincident", 11, 2, 12, 1))
sketch9.addConstraint(Sketcher.Constraint("Coincident", 12, 2, 13, 1))
sketch9.addConstraint(Sketcher.Constraint("Coincident", 13, 2, 10, 1))
sketch9.addConstraint(Sketcher.Constraint("Vertical", 10))
sketch9.addConstraint(Sketcher.Constraint("Horizontal", 11))
sketch9.addConstraint(Sketcher.Constraint("Vertical", 12))
sketch9.addConstraint(Sketcher.Constraint("Horizontal", 13))
sketch9.addConstraint(Sketcher.Constraint("Equal", 0, 1))
sketch9.addConstraint(Sketcher.Constraint("Equal", 2, 3))
sketch9.addConstraint(Sketcher.Constraint("Equal", 3, 4))
sketch9.addConstraint(Sketcher.Constraint("Equal", 4, 5))
sketch9.addConstraint(Sketcher.Constraint("Equal", 5, 6))
sketch9.addConstraint(Sketcher.Constraint("Equal", 6, 7))
sketch9.addConstraint(Sketcher.Constraint("Equal", 7, 8))
sketch9.addConstraint(Sketcher.Constraint("Equal", 8, 9))
sketch9.addConstraint(Sketcher.Constraint("Symmetric", 0, 3, 1, 3, -2))
sketch9.addConstraint(Sketcher.Constraint("Symmetric", 3, 3, 4, 3, -2))
sketch9.addConstraint(Sketcher.Constraint("Symmetric", 2, 3, 5, 3, -2))
sketch9.addConstraint(Sketcher.Constraint("Symmetric", 7, 3, 8, 3, -2))
sketch9.addConstraint(Sketcher.Constraint("Symmetric", 6, 3, 9, 3, -2))
sketch9.addConstraint(Sketcher.Constraint("Horizontal", 2, 3, 3, 3))
sketch9.addConstraint(Sketcher.Constraint("Horizontal", 6, 3, 7, 3))
sketch9.addConstraint(Sketcher.Constraint("Vertical", 5, 3, 6, 3))
sketch9.addConstraint(Sketcher.Constraint("Vertical", 4, 3, 7, 3))
sketch9.addConstraint(Sketcher.Constraint("Diameter", 0, Q("55 mm")))
sketch9.addConstraint(Sketcher.Constraint("Diameter", 2, Q("2 mm")))
sketch9.addConstraint(Sketcher.Constraint("DistanceX", 11, 1, 11, 2, Q("5 mm")))
sketch9.addConstraint(Sketcher.Constraint("DistanceY", 10, 1, 10, 2, Q("20 mm")))
sketch9.addConstraint(Sketcher.Constraint("DistanceY", -1, 1, 0, 3, Q("30 mm")))
sketch9.addConstraint(Sketcher.Constraint("DistanceY", -1, 1, 2, 3, Q("55 mm")))
sketch9.addConstraint(Sketcher.Constraint("DistanceY", -1, 1, 6, 3, Q("5 mm")))
sketch9.addConstraint(Sketcher.Constraint("DistanceY", -1, 1, 10, 2, Q("40 mm")))
sketch9.addConstraint(Sketcher.Constraint("DistanceX", 1, 3, 0, 3, Q("65 mm")))
sketch9.addConstraint(Sketcher.Constraint("DistanceX", 2, 3, 1, 3, Q("25 mm")))
sketch9.addConstraint(Sketcher.Constraint("DistanceX", 1, 3, 3, 3, Q("25 mm")))
sketch9.addConstraint(Sketcher.Constraint("DistanceX", 3, 3, 10, 2, Q("5 mm")))
pocket6 = body.newObject("PartDesign::Pocket", "Pocket005")
pocket6.Profile = sketch9
pocket6.Type = "ThroughAll"
pocket6.Reversed = True

# Sketch on XY plane
sketch10 = body.newObject("Sketcher::SketchObject", "Sketch009")
sketch10.AttachmentSupport = (doc.getObject("XY_Plane"), [""])
sketch10.MapMode = "FlatFace"
sketch10.AttachmentOffset = App.Placement(Vector(0, 0, 52), App.Rotation())
sketch10.addGeometry(Part.LineSegment(Vector(60, -25, 0), Vector(65, -25, 0)), False)
sketch10.addGeometry(Part.LineSegment(Vector(65, -25, 0), Vector(65, -15, 0)), False)
sketch10.addGeometry(Part.LineSegment(Vector(65, -15, 0), Vector(60, -15, 0)), False)
sketch10.addGeometry(Part.ArcOfCircle(Part.Circle(Vector(60, -20, 0), Vector(0, 0, 1), 5), math.radians(90), math.radians(270)), False)
sketch10.addGeometry(Part.Circle(Vector(60, -20, 0), Vector(0, 0, 1), 1.6), False)
sketch10.addGeometry(Part.LineSegment(Vector(65, 35, 0), Vector(60, 35, 0)), False)
sketch10.addGeometry(Part.ArcOfCircle(Part.Circle(Vector(60, 30, 0), Vector(0, 0, 1), 5), math.radians(90), math.radians(360)), False)
sketch10.addGeometry(Part.LineSegment(Vector(65, 30, 0), Vector(65, 35, 0)), False)
sketch10.addGeometry(Part.Circle(Vector(60, 30, 0), Vector(0, 0, 1), 1.6), False)
sketch10.addGeometry(Part.LineSegment(Vector(-65, -15, 0), Vector(-65, -25, 0)), False)
sketch10.addGeometry(Part.LineSegment(Vector(-65, -25, 0), Vector(-60, -25, 0)), False)
sketch10.addGeometry(Part.ArcOfCircle(Part.Circle(Vector(-60, -20, 0), Vector(0, 0, 1), 5), math.radians(-90), math.radians(90)), False)
sketch10.addGeometry(Part.LineSegment(Vector(-60, -15, 0), Vector(-65, -15, 0)), False)
sketch10.addGeometry(Part.Circle(Vector(-60, -20, 0), Vector(0, 0, 1), 1.6), False)
sketch10.addGeometry(Part.LineSegment(Vector(-60, 35, 0), Vector(-65, 35, 0)), False)
sketch10.addGeometry(Part.LineSegment(Vector(-65, 35, 0), Vector(-65, 30, 0)), False)
sketch10.addGeometry(Part.ArcOfCircle(Part.Circle(Vector(-60, 30, 0), Vector(0, 0, 1), 5), math.radians(180), math.radians(450)), False)
sketch10.addGeometry(Part.Circle(Vector(-60, 30, 0), Vector(0, 0, 1), 1.6), False)
sketch10.addConstraint(Sketcher.Constraint("Coincident", 0, 2, 1, 1))
sketch10.addConstraint(Sketcher.Constraint("Coincident", 1, 2, 2, 1))
sketch10.addConstraint(Sketcher.Constraint("Tangent", 2, 2, 3, 1))
sketch10.addConstraint(Sketcher.Constraint("Tangent", 3, 2, 0, 1))
sketch10.addConstraint(Sketcher.Constraint("Tangent", 5, 2, 6, 1))
sketch10.addConstraint(Sketcher.Constraint("Tangent", 6, 2, 7, 1))
sketch10.addConstraint(Sketcher.Constraint("Coincident", 7, 2, 5, 1))
sketch10.addConstraint(Sketcher.Constraint("Coincident", 9, 2, 10, 1))
sketch10.addConstraint(Sketcher.Constraint("Tangent", 10, 2, 11, 1))
sketch10.addConstraint(Sketcher.Constraint("Tangent", 11, 2, 12, 1))
sketch10.addConstraint(Sketcher.Constraint("Coincident", 12, 2, 9, 1))
sketch10.addConstraint(Sketcher.Constraint("Coincident", 14, 2, 15, 1))
sketch10.addConstraint(Sketcher.Constraint("Tangent", 15, 2, 16, 1))
sketch10.addConstraint(Sketcher.Constraint("Tangent", 16, 2, 14, 1))
sketch10.addConstraint(Sketcher.Constraint("Horizontal", 0))
sketch10.addConstraint(Sketcher.Constraint("Vertical", 1))
sketch10.addConstraint(Sketcher.Constraint("Horizontal", 2))
sketch10.addConstraint(Sketcher.Constraint("Horizontal", 5))
sketch10.addConstraint(Sketcher.Constraint("Vertical", 7))
sketch10.addConstraint(Sketcher.Constraint("Vertical", 9))
sketch10.addConstraint(Sketcher.Constraint("Horizontal", 10))
sketch10.addConstraint(Sketcher.Constraint("Horizontal", 12))
sketch10.addConstraint(Sketcher.Constraint("Horizontal", 14))
sketch10.addConstraint(Sketcher.Constraint("Vertical", 15))
sketch10.addConstraint(Sketcher.Constraint("Coincident", 4, 3, 3, 3))
sketch10.addConstraint(Sketcher.Constraint("Coincident", 8, 3, 6, 3))
sketch10.addConstraint(Sketcher.Constraint("Coincident", 13, 3, 11, 3))
sketch10.addConstraint(Sketcher.Constraint("Coincident", 17, 3, 16, 3))
sketch10.addConstraint(Sketcher.Constraint("Equal", 3, 6))
sketch10.addConstraint(Sketcher.Constraint("Equal", 4, 8))
sketch10.addConstraint(Sketcher.Constraint("Equal", 6, 11))
sketch10.addConstraint(Sketcher.Constraint("Equal", 8, 13))
sketch10.addConstraint(Sketcher.Constraint("Equal", 11, 16))
sketch10.addConstraint(Sketcher.Constraint("Equal", 13, 17))
sketch10.addConstraint(Sketcher.Constraint("Symmetric", 3, 3, 11, 3, -2))
sketch10.addConstraint(Sketcher.Constraint("Symmetric", 6, 3, 16, 3, -2))
sketch10.addConstraint(Sketcher.Constraint("Vertical", 4, 3, 6, 3))
sketch10.addConstraint(Sketcher.Constraint("Vertical", 1, 2, 6, 2))
sketch10.addConstraint(Sketcher.Constraint("Vertical", 12, 2, 14, 2))
sketch10.addConstraint(Sketcher.Constraint("Radius", 3, Q("5 mm")))
sketch10.addConstraint(Sketcher.Constraint("Diameter", 4, Q("3.3 mm")))
sketch10.addConstraint(Sketcher.Constraint("DistanceX", -1, 1, 3, 3, Q("60 mm")))
sketch10.addConstraint(Sketcher.Constraint("DistanceY", 3, 3, -1, 1, Q("20 mm")))
sketch10.addConstraint(Sketcher.Constraint("DistanceY", -1, 1, 6, 3, Q("30 mm")))
pad4 = body.newObject("PartDesign::Pad", "Pad003")
pad4.Profile = sketch10
pad4.Length = 7
pad4.Reversed = True

doc.recompute()
